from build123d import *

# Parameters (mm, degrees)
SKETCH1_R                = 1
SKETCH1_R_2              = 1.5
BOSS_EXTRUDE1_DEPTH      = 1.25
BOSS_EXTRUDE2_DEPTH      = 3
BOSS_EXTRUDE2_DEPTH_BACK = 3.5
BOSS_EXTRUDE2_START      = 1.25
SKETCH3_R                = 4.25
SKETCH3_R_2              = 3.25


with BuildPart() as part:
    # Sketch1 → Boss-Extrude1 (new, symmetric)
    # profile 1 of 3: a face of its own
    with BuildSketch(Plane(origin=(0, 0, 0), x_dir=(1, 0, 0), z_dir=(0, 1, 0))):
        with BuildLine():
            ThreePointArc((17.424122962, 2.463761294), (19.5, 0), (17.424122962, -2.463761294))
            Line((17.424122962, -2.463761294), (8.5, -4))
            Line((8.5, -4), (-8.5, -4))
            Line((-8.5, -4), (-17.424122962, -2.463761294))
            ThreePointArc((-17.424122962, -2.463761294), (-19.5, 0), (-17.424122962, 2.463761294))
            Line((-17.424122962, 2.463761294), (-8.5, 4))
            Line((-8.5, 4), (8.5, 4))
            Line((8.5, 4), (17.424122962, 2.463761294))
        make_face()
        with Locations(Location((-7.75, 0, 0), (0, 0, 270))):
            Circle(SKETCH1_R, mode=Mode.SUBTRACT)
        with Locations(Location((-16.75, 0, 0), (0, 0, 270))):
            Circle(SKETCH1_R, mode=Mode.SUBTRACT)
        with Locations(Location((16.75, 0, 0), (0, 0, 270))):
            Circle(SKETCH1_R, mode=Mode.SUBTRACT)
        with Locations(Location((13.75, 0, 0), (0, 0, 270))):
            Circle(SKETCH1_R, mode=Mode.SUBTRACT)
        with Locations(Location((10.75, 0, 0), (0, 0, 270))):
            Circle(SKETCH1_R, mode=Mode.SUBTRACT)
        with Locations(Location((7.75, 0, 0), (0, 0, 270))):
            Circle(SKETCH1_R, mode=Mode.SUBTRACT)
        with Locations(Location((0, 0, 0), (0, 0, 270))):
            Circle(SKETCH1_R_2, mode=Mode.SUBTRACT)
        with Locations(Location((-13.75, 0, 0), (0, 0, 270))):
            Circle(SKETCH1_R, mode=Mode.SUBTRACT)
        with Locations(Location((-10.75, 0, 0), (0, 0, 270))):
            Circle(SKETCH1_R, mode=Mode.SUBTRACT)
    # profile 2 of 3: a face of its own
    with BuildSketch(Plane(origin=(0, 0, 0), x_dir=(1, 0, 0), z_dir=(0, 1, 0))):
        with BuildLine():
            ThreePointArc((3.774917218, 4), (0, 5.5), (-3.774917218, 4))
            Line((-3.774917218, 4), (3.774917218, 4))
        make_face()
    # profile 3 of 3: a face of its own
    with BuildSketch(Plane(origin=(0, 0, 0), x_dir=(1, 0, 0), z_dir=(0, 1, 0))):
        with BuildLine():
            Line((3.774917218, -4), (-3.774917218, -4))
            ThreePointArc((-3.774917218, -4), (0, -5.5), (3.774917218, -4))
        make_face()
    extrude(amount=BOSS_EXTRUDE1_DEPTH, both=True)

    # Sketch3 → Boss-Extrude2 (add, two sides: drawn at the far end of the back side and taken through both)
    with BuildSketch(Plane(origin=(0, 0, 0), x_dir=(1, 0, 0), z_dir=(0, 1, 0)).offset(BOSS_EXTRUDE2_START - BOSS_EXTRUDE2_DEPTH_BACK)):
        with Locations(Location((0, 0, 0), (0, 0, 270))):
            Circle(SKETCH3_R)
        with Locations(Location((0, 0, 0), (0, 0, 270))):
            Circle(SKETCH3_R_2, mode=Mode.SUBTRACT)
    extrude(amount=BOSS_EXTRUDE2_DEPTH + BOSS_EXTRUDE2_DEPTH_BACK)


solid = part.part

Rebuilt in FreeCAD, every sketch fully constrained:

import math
import FreeCAD as App
import Part
import Sketcher
from FreeCAD import Vector

doc = App.newDocument("Part")
body = doc.addObject("PartDesign::Body", "Body")

# Sketch on XZ plane
sketch1 = body.newObject("Sketcher::SketchObject", "Sketch")
sketch1.AttachmentSupport = (doc.getObject("XZ_Plane"), [""])
sketch1.MapMode = "FlatFace"
sketch1.addGeometry([
    Part.ArcOfCircle(Part.Circle(Vector(17, 0, 0), Vector(0, 0, 1), 2.5), math.radians(-80), math.radians(80)),  # 0
    Part.LineSegment(Vector(17.4, -2.5, 0), Vector(8.5, -4, 0)),  # 1
    Part.LineSegment(Vector(8.5, -4, 0), Vector(3.8, -4, 0)),  # 2
    Part.ArcOfCircle(Part.Circle(Vector(0, 0, 0), Vector(0, 0, 1), 5.5), math.radians(-133), math.radians(-47)),  # 3
    Part.LineSegment(Vector(-3.8, -4, 0), Vector(-8.5, -4, 0)),  # 4
    Part.LineSegment(Vector(-8.5, -4, 0), Vector(-17.4, -2.5, 0)),  # 5
    Part.ArcOfCircle(Part.Circle(Vector(-17, 0, 0), Vector(0, 0, 1), 2.5), math.radians(100), math.radians(260)),  # 6
    Part.LineSegment(Vector(-17.4, 2.5, 0), Vector(-8.5, 4, 0)),  # 7
    Part.LineSegment(Vector(-8.5, 4, 0), Vector(-3.8, 4, 0)),  # 8
    Part.ArcOfCircle(Part.Circle(Vector(0, 0, 0), Vector(0, 0, 1), 5.5), math.radians(47), math.radians(133)),  # 9
    Part.LineSegment(Vector(3.8, 4, 0), Vector(8.5, 4, 0)),  # 10
    Part.LineSegment(Vector(8.5, 4, 0), Vector(17.4, 2.5, 0)),  # 11
    Part.Circle(Vector(16.8, 0, 0), Vector(0, 0, 1), 1),  # 12
    Part.Circle(Vector(13.8, 0, 0), Vector(0, 0, 1), 1),  # 13
    Part.Circle(Vector(10.8, 0, 0), Vector(0, 0, 1), 1),  # 14
    Part.Circle(Vector(7.8, 0, 0), Vector(0, 0, 1), 1),  # 15
    Part.Circle(Vector(0, 0, 0), Vector(0, 0, 1), 1.5),  # 16
    Part.Circle(Vector(-7.8, 0, 0), Vector(0, 0, 1), 1),  # 17
    Part.Circle(Vector(-10.8, 0, 0), Vector(0, 0, 1), 1),  # 18
    Part.Circle(Vector(-13.8, 0, 0), Vector(0, 0, 1), 1),  # 19
    Part.Circle(Vector(-16.8, 0, 0), Vector(0, 0, 1), 1),  # 20
], False)
sketch1.addConstraint([
    Sketcher.Constraint("Tangent", 0, 1, 1, 1),
    Sketcher.Constraint("Coincident", 1, 2, 2, 1),
    Sketcher.Constraint("Coincident", 2, 2, 3, 2),
    Sketcher.Constraint("Coincident", 3, 1, 4, 1),
    Sketcher.Constraint("Coincident", 4, 2, 5, 1),
    Sketcher.Constraint("Tangent", 5, 2, 6, 2),
    Sketcher.Constraint("Tangent", 6, 1, 7, 1),
    Sketcher.Constraint("Coincident", 7, 2, 8, 1),
    Sketcher.Constraint("Coincident", 8, 2, 9, 2),
    Sketcher.Constraint("Coincident", 9, 1, 10, 1),
    Sketcher.Constraint("Coincident", 10, 2, 11, 1),
    Sketcher.Constraint("Tangent", 11, 2, 0, 2),
    Sketcher.Constraint("Horizontal", 2),
    Sketcher.Constraint("Horizontal", 4),
    Sketcher.Constraint("Horizontal", 8),
    Sketcher.Constraint("Horizontal", 10),
    Sketcher.Constraint("Coincident", 3, 3, -1, 1),
    Sketcher.Constraint("Coincident", 9, 3, -1, 1),
    Sketcher.Constraint("Coincident", 16, 3, -1, 1),
    Sketcher.Constraint("Equal", 0, 6),
    Sketcher.Constraint("Equal", 3, 9),
    Sketcher.Constraint("Equal", 12, 13),
    Sketcher.Constraint("Equal", 13, 14),
    Sketcher.Constraint("Equal", 14, 15),
    Sketcher.Constraint("Equal", 15, 17),
    Sketcher.Constraint("Equal", 17, 18),
    Sketcher.Constraint("Equal", 18, 19),
    Sketcher.Constraint("Equal", 19, 20),
    Sketcher.Constraint("Symmetric", 0, 3, 6, 3, -1, 1),
    Sketcher.Constraint("Symmetric", 15, 3, 17, 3, -1, 1),
    Sketcher.Constraint("Symmetric", 14, 3, 18, 3, -1, 1),
    Sketcher.Constraint("Symmetric", 13, 3, 19, 3, -1, 1),
    Sketcher.Constraint("Symmetric", 12, 3, 20, 3, -1, 1),
    Sketcher.Constraint("Symmetric", 1, 2, 7, 2, -1, 1),
    Sketcher.Constraint("Symmetric", 4, 2, 10, 2, -1, 1),
    Sketcher.Constraint("Symmetric", 1, 2, 4, 2, -2),
    Sketcher.Constraint("PointOnObject", 0, 3, -1),
    Sketcher.Constraint("PointOnObject", 12, 3, -1),
    Sketcher.Constraint("PointOnObject", 13, 3, -1),
    Sketcher.Constraint("PointOnObject", 14, 3, -1),
    Sketcher.Constraint("PointOnObject", 15, 3, -1),
    Sketcher.Constraint("Diameter", 12, 2.0),
    Sketcher.Constraint("Diameter", 16, 3.0),
    Sketcher.Constraint("Radius", 0, 2.5),
    Sketcher.Constraint("Radius", 3, 5.5),
    Sketcher.Constraint("DistanceX", -1, 1, 0, 3, 17.0),
    Sketcher.Constraint("DistanceY", 1, 2, -1, 1, 4.0),
    Sketcher.Constraint("DistanceX", 13, 3, 12, 3, 3.0),
    Sketcher.Constraint("DistanceX", 14, 3, 13, 3, 3.0),
    Sketcher.Constraint("DistanceX", 15, 3, 14, 3, 3.0),
    Sketcher.Constraint("DistanceX", -1, 1, 1, 2, 8.5),
    Sketcher.Constraint("DistanceX", 17, 3, 15, 3, 15.5),
])
pad1 = body.newObject("PartDesign::Pad", "Pad")
pad1.Profile = sketch1
pad1.Length = 2.5
pad1.Midplane = True

# Sketch on XZ plane
sketch2 = body.newObject("Sketcher::SketchObject", "Sketch001")
sketch2.AttachmentSupport = (doc.getObject("XZ_Plane"), [""])
sketch2.MapMode = "FlatFace"
sketch2.AttachmentOffset = App.Placement(Vector(0, 0, -1.25), App.Rotation())
sketch2.addGeometry([
    Part.Circle(Vector(0, 0, 0), Vector(0, 0, 1), 4.2),
    Part.Circle(Vector(0, 0, 0), Vector(0, 0, 1), 3.2),
], False)
sketch2.addConstraint([
    Sketcher.Constraint("Coincident", 0, 3, -1, 1),
    Sketcher.Constraint("Coincident", 1, 3, -1, 1),
    Sketcher.Constraint("Diameter", 0, 8.5),
    Sketcher.Constraint("Diameter", 1, 6.5),
])
pad2 = body.newObject("PartDesign::Pad", "Pad001")
pad2.Profile = sketch2
pad2.Type = "TwoLengths"
pad2.Length = 3
pad2.Length2 = 3.5
pad2.Reversed = True

doc.recompute()
